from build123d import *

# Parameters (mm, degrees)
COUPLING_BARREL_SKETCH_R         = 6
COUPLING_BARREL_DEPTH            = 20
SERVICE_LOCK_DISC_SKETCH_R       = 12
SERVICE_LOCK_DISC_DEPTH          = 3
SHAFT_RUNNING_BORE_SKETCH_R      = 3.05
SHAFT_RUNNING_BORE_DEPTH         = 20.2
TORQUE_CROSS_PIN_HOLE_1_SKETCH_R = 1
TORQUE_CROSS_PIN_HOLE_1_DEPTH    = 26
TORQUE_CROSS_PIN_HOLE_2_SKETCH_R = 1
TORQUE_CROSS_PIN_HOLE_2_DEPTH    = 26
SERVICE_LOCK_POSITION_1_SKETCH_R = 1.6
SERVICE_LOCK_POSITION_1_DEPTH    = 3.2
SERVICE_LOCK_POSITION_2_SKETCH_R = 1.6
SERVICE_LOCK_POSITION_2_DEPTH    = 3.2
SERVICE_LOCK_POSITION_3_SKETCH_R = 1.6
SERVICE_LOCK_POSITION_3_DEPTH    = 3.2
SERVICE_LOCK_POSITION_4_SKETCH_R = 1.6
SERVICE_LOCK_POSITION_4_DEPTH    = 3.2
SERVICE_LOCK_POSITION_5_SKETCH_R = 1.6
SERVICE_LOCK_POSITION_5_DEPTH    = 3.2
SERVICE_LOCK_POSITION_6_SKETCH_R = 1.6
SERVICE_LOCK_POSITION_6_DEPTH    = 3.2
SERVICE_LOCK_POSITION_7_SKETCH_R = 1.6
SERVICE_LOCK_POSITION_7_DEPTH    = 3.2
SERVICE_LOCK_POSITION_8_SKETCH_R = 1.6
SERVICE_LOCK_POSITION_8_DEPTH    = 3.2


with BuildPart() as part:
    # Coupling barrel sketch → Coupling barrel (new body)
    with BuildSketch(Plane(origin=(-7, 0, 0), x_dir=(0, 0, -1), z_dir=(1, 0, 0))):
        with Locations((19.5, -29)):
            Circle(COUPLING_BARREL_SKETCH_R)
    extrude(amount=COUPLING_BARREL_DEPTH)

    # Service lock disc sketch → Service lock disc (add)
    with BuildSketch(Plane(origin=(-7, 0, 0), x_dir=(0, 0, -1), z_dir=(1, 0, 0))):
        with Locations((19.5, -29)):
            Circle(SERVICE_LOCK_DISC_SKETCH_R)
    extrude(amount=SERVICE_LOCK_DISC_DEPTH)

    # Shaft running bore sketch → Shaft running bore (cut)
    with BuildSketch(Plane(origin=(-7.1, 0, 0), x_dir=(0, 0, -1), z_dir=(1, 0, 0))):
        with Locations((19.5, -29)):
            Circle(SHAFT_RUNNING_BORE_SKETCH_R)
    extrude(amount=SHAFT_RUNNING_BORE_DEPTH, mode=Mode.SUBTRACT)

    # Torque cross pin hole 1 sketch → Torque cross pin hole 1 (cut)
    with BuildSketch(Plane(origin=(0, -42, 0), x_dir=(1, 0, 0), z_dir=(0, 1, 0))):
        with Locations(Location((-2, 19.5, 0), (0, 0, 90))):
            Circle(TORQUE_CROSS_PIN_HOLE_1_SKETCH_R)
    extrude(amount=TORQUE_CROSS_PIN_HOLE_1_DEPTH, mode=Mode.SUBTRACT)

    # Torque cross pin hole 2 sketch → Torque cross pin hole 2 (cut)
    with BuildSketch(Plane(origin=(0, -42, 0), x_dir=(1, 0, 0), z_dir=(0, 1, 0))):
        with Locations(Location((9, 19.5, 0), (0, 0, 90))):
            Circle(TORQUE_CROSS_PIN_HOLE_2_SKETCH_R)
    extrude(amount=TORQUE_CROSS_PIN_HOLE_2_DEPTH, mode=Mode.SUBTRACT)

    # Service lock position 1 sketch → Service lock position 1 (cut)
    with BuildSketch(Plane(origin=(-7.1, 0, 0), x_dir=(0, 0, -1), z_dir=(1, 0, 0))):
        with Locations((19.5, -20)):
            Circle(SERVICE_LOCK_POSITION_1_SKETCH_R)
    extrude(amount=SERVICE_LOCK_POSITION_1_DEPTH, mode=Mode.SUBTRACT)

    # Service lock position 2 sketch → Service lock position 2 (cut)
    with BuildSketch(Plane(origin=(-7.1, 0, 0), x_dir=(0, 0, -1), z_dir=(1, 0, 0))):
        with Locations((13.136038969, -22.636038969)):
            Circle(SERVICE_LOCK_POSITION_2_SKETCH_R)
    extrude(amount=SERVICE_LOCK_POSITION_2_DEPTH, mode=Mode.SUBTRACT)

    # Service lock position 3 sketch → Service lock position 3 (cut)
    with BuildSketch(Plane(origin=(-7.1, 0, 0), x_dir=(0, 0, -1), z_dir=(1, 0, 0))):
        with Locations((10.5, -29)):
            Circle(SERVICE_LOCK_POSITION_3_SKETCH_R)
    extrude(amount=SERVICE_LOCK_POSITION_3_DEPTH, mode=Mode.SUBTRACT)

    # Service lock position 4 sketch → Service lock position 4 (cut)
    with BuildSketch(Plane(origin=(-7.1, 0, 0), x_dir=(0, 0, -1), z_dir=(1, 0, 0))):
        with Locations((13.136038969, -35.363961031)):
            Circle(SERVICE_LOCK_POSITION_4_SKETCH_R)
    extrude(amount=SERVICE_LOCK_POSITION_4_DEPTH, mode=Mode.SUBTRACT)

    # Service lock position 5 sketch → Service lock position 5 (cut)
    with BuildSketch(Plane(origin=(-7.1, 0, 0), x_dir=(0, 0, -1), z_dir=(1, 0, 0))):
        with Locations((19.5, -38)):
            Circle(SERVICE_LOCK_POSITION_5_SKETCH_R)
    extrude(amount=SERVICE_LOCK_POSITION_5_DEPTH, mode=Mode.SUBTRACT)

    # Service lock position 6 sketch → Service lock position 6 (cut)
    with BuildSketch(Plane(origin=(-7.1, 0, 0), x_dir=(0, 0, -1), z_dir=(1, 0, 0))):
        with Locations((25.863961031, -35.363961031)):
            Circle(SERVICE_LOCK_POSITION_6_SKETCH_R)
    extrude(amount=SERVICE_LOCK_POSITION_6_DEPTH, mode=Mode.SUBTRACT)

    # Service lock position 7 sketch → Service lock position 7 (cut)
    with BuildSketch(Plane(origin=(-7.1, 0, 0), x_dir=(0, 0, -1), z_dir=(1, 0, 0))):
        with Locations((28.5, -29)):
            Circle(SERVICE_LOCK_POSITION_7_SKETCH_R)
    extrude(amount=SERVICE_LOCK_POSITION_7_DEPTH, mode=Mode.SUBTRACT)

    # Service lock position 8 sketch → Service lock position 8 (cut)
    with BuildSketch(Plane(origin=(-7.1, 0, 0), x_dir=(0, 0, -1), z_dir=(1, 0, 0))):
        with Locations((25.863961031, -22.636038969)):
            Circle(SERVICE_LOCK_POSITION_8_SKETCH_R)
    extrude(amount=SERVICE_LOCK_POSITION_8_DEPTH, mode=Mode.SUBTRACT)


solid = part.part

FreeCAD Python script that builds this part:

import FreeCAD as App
import Part
import Sketcher

V = App.Vector
Q = App.Units.Quantity

doc = App.newDocument("Part")
params = doc.addObject("Spreadsheet::Sheet", "Params")
for row, (alias, value) in enumerate([
    ("sketch1_diameter", "12 mm"),
    ("pad1_length", "20 mm"),
    ("sketch2_diameter", "24 mm"),
    ("pad2_length", "3 mm"),
    ("sketch3_diameter", "6.1 mm"),
    ("pocket1_length", "20.2 mm"),
    ("sketch4_diameter", "2 mm"),
    ("pocket2_length", "26 mm"),
    ("sketch5_diameter", "2 mm"),
    ("pocket3_length", "26 mm"),
    ("sketch6_diameter", "3.2 mm"),
    ("pocket4_length", "3.2 mm"),
    ("sketch7_diameter", "3.2 mm"),
    ("pocket5_length", "3.2 mm"),
    ("sketch8_diameter", "3.2 mm"),
    ("pocket6_length", "3.2 mm"),
    ("sketch9_diameter", "3.2 mm"),
    ("pocket7_length", "3.2 mm"),
    ("sketch10_diameter", "3.2 mm"),
    ("pocket8_length", "3.2 mm"),
    ("sketch11_diameter", "3.2 mm"),
    ("pocket9_length", "3.2 mm"),
    ("sketch12_diameter", "3.2 mm"),
    ("pocket10_length", "3.2 mm"),
    ("sketch13_diameter", "3.2 mm"),
    ("pocket11_length", "3.2 mm"),
], start=1):
    params.set(f"A{row}", alias)
    params.set(f"B{row}", "=" + value)
    params.setAlias(f"B{row}", alias)

body = doc.addObject("PartDesign::Body", "Body")

# Sketch on YZ plane
sketch1 = body.newObject("Sketcher::SketchObject", "Sketch")
sketch1.AttachmentSupport = (doc.getObject("YZ_Plane"), [""])
sketch1.MapMode = "FlatFace"
sketch1.AttachmentOffset = App.Placement(V(0, 0, -7), App.Rotation())
sketch1.addGeometry(Part.Circle(V(-29, -20, 0), V(0, 0, 1), 6), False)
sketch1.addConstraint([
    Sketcher.Constraint("Diameter", 0, Q("12 mm")),
    Sketcher.Constraint("DistanceX", 0, 3, -1, 1, Q("29 mm")),
    Sketcher.Constraint("DistanceY", 0, 3, -1, 1, Q("19.5 mm")),
])
sketch1.setExpression("Constraints[0]", "Params.sketch1_diameter")
pad1 = body.newObject("PartDesign::Pad", "Pad")
pad1.Profile = sketch1
pad1.setExpression("Length", "Params.pad1_length")

# Sketch on YZ plane
sketch2 = body.newObject("Sketcher::SketchObject", "Sketch001")
sketch2.AttachmentSupport = (doc.getObject("YZ_Plane"), [""])
sketch2.MapMode = "FlatFace"
sketch2.AttachmentOffset = App.Placement(V(0, 0, -7), App.Rotation())
sketch2.addGeometry(Part.Circle(V(-29, -20, 0), V(0, 0, 1), 12), False)
sketch2.addConstraint([
    Sketcher.Constraint("Diameter", 0, Q("24 mm")),
    Sketcher.Constraint("DistanceX", 0, 3, -1, 1, Q("29 mm")),
    Sketcher.Constraint("DistanceY", 0, 3, -1, 1, Q("19.5 mm")),
])
sketch2.setExpression("Constraints[0]", "Params.sketch2_diameter")
pad2 = body.newObject("PartDesign::Pad", "Pad001")
pad2.Profile = sketch2
pad2.setExpression("Length", "Params.pad2_length")

# Sketch on YZ plane
sketch3 = body.newObject("Sketcher::SketchObject", "Sketch002")
sketch3.AttachmentSupport = (doc.getObject("YZ_Plane"), [""])
sketch3.MapMode = "FlatFace"
sketch3.AttachmentOffset = App.Placement(V(0, 0, -7.1), App.Rotation())
sketch3.addGeometry(Part.Circle(V(-29, -19.5, 0), V(0, 0, 1), 3), False)
sketch3.addConstraint([
    Sketcher.Constraint("Diameter", 0, Q("6.1 mm")),
    Sketcher.Constraint("DistanceX", 0, 3, -1, 1, Q("29 mm")),
    Sketcher.Constraint("DistanceY", 0, 3, -1, 1, Q("19.5 mm")),
])
sketch3.setExpression("Constraints[0]", "Params.sketch3_diameter")
pocket1 = body.newObject("PartDesign::Pocket", "Pocket")
pocket1.Profile = sketch3
pocket1.setExpression("Length", "Params.pocket1_length")
pocket1.Reversed = True

# Sketch on XZ plane
sketch4 = body.newObject("Sketcher::SketchObject", "Sketch003")
sketch4.AttachmentSupport = (doc.getObject("XZ_Plane"), [""])
sketch4.MapMode = "FlatFace"
sketch4.AttachmentOffset = App.Placement(V(0, 0, 42), App.Rotation())
sketch4.addGeometry(Part.Circle(V(-2, -19.5, 0), V(0, 0, 1), 1), False)
sketch4.addConstraint([
    Sketcher.Constraint("Diameter", 0, Q("2 mm")),
    Sketcher.Constraint("DistanceX", 0, 3, -1, 1, Q("2 mm")),
    Sketcher.Constraint("DistanceY", 0, 3, -1, 1, Q("19.5 mm")),
])
sketch4.setExpression("Constraints[0]", "Params.sketch4_diameter")
pocket2 = body.newObject("PartDesign::Pocket", "Pocket001")
pocket2.Profile = sketch4
pocket2.setExpression("Length", "Params.pocket2_length")

# Sketch on XZ plane
sketch5 = body.newObject("Sketcher::SketchObject", "Sketch004")
sketch5.AttachmentSupport = (doc.getObject("XZ_Plane"), [""])
sketch5.MapMode = "FlatFace"
sketch5.AttachmentOffset = App.Placement(V(0, 0, 42), App.Rotation())
sketch5.addGeometry(Part.Circle(V(9, -19.5, 0), V(0, 0, 1), 1), False)
sketch5.addConstraint([
    Sketcher.Constraint("Diameter", 0, Q("2 mm")),
    Sketcher.Constraint("DistanceX", -1, 1, 0, 3, Q("9 mm")),
    Sketcher.Constraint("DistanceY", 0, 3, -1, 1, Q("19.5 mm")),
])
sketch5.setExpression("Constraints[0]", "Params.sketch5_diameter")
pocket3 = body.newObject("PartDesign::Pocket", "Pocket002")
pocket3.Profile = sketch5
pocket3.setExpression("Length", "Params.pocket3_length")

# Sketch on YZ plane
sketch6 = body.newObject("Sketcher::SketchObject", "Sketch005")
sketch6.AttachmentSupport = (doc.getObject("YZ_Plane"), [""])
sketch6.MapMode = "FlatFace"
sketch6.AttachmentOffset = App.Placement(V(0, 0, -7.1), App.Rotation())
sketch6.addGeometry(Part.Circle(V(-20, -19.5, 0), V(0, 0, 1), 1.6), False)
sketch6.addConstraint([
    Sketcher.Constraint("Diameter", 0, Q("3.2 mm")),
    Sketcher.Constraint("DistanceX", 0, 3, -1, 1, Q("20 mm")),
    Sketcher.Constraint("DistanceY", 0, 3, -1, 1, Q("19.5 mm")),
])
sketch6.setExpression("Constraints[0]", "Params.sketch6_diameter")
pocket4 = body.newObject("PartDesign::Pocket", "Pocket003")
pocket4.Profile = sketch6
pocket4.setExpression("Length", "Params.pocket4_length")
pocket4.Reversed = True

# Sketch on YZ plane
sketch7 = body.newObject("Sketcher::SketchObject", "Sketch006")
sketch7.AttachmentSupport = (doc.getObject("YZ_Plane"), [""])
sketch7.MapMode = "FlatFace"
sketch7.AttachmentOffset = App.Placement(V(0, 0, -7.1), App.Rotation())
sketch7.addGeometry(Part.Circle(V(-22.6, -13.1, 0), V(0, 0, 1), 1.6), False)
sketch7.addConstraint([
    Sketcher.Constraint("Diameter", 0, Q("3.2 mm")),
    Sketcher.Constraint("DistanceX", 0, 3, -1, 1, Q("22.636039 mm")),
    Sketcher.Constraint("DistanceY", 0, 3, -1, 1, Q("13.136039 mm")),
])
sketch7.setExpression("Constraints[0]", "Params.sketch7_diameter")
pocket5 = body.newObject("PartDesign::Pocket", "Pocket004")
pocket5.Profile = sketch7
pocket5.setExpression("Length", "Params.pocket5_length")
pocket5.Reversed = True

# Sketch on YZ plane
sketch8 = body.newObject("Sketcher::SketchObject", "Sketch007")
sketch8.AttachmentSupport = (doc.getObject("YZ_Plane"), [""])
sketch8.MapMode = "FlatFace"
sketch8.AttachmentOffset = App.Placement(V(0, 0, -7.1), App.Rotation())
sketch8.addGeometry(Part.Circle(V(-29, -10.5, 0), V(0, 0, 1), 1.6), False)
sketch8.addConstraint([
    Sketcher.Constraint("Diameter", 0, Q("3.2 mm")),
    Sketcher.Constraint("DistanceX", 0, 3, -1, 1, Q("29 mm")),
    Sketcher.Constraint("DistanceY", 0, 3, -1, 1, Q("10.5 mm")),
])
sketch8.setExpression("Constraints[0]", "Params.sketch8_diameter")
pocket6 = body.newObject("PartDesign::Pocket", "Pocket005")
pocket6.Profile = sketch8
pocket6.setExpression("Length", "Params.pocket6_length")
pocket6.Reversed = True

# Sketch on YZ plane
sketch9 = body.newObject("Sketcher::SketchObject", "Sketch008")
sketch9.AttachmentSupport = (doc.getObject("YZ_Plane"), [""])
sketch9.MapMode = "FlatFace"
sketch9.AttachmentOffset = App.Placement(V(0, 0, -7.1), App.Rotation())
sketch9.addGeometry(Part.Circle(V(-35.4, -13.1, 0), V(0, 0, 1), 1.6), False)
sketch9.addConstraint([
    Sketcher.Constraint("Diameter", 0, Q("3.2 mm")),
    Sketcher.Constraint("DistanceX", 0, 3, -1, 1, Q("35.363961 mm")),
    Sketcher.Constraint("DistanceY", 0, 3, -1, 1, Q("13.136039 mm")),
])
sketch9.setExpression("Constraints[0]", "Params.sketch9_diameter")
pocket7 = body.newObject("PartDesign::Pocket", "Pocket006")
pocket7.Profile = sketch9
pocket7.setExpression("Length", "Params.pocket7_length")
pocket7.Reversed = True

# Sketch on YZ plane
sketch10 = body.newObject("Sketcher::SketchObject", "Sketch009")
sketch10.AttachmentSupport = (doc.getObject("YZ_Plane"), [""])
sketch10.MapMode = "FlatFace"
sketch10.AttachmentOffset = App.Placement(V(0, 0, -7.1), App.Rotation())
sketch10.addGeometry(Part.Circle(V(-38, -19.5, 0), V(0, 0, 1), 1.6), False)
sketch10.addConstraint([
    Sketcher.Constraint("Diameter", 0, Q("3.2 mm")),
    Sketcher.Constraint("DistanceX", 0, 3, -1, 1, Q("38 mm")),
    Sketcher.Constraint("DistanceY", 0, 3, -1, 1, Q("19.5 mm")),
])
sketch10.setExpression("Constraints[0]", "Params.sketch10_diameter")
pocket8 = body.newObject("PartDesign::Pocket", "Pocket007")
pocket8.Profile = sketch10
pocket8.setExpression("Length", "Params.pocket8_length")
pocket8.Reversed = True

# Sketch on YZ plane
sketch11 = body.newObject("Sketcher::SketchObject", "Sketch010")
sketch11.AttachmentSupport = (doc.getObject("YZ_Plane"), [""])
sketch11.MapMode = "FlatFace"
sketch11.AttachmentOffset = App.Placement(V(0, 0, -7.1), App.Rotation())
sketch11.addGeometry(Part.Circle(V(-35.4, -25.9, 0), V(0, 0, 1), 1.6), False)
sketch11.addConstraint([
    Sketcher.Constraint("Diameter", 0, Q("3.2 mm")),
    Sketcher.Constraint("DistanceX", 0, 3, -1, 1, Q("35.363961 mm")),
    Sketcher.Constraint("DistanceY", 0, 3, -1, 1, Q("25.863961 mm")),
])
sketch11.setExpression("Constraints[0]", "Params.sketch11_diameter")
pocket9 = body.newObject("PartDesign::Pocket", "Pocket008")
pocket9.Profile = sketch11
pocket9.setExpression("Length", "Params.pocket9_length")
pocket9.Reversed = True

# Sketch on YZ plane
sketch12 = body.newObject("Sketcher::SketchObject", "Sketch011")
sketch12.AttachmentSupport = (doc.getObject("YZ_Plane"), [""])
sketch12.MapMode = "FlatFace"
sketch12.AttachmentOffset = App.Placement(V(0, 0, -7.1), App.Rotation())
sketch12.addGeometry(Part.Circle(V(-29, -28.5, 0), V(0, 0, 1), 1.6), False)
sketch12.addConstraint([
    Sketcher.Constraint("Diameter", 0, Q("3.2 mm")),
    Sketcher.Constraint("DistanceX", 0, 3, -1, 1, Q("29 mm")),
    Sketcher.Constraint("DistanceY", 0, 3, -1, 1, Q("28.5 mm")),
])
sketch12.setExpression("Constraints[0]", "Params.sketch12_diameter")
pocket10 = body.newObject("PartDesign::Pocket", "Pocket009")
pocket10.Profile = sketch12
pocket10.setExpression("Length", "Params.pocket10_length")
pocket10.Reversed = True

# Sketch on YZ plane
sketch13 = body.newObject("Sketcher::SketchObject", "Sketch012")
sketch13.AttachmentSupport = (doc.getObject("YZ_Plane"), [""])
sketch13.MapMode = "FlatFace"
sketch13.AttachmentOffset = App.Placement(V(0, 0, -7.1), App.Rotation())
sketch13.addGeometry(Part.Circle(V(-22.6, -25.9, 0), V(0, 0, 1), 1.6), False)
sketch13.addConstraint([
    Sketcher.Constraint("Diameter", 0, Q("3.2 mm")),
    Sketcher.Constraint("DistanceX", 0, 3, -1, 1, Q("22.636039 mm")),
    Sketcher.Constraint("DistanceY", 0, 3, -1, 1, Q("25.863961 mm")),
])
sketch13.setExpression("Constraints[0]", "Params.sketch13_diameter")
pocket11 = body.newObject("PartDesign::Pocket", "Pocket010")
pocket11.Profile = sketch13
pocket11.setExpression("Length", "Params.pocket11_length")
pocket11.Reversed = True

doc.recompute()
